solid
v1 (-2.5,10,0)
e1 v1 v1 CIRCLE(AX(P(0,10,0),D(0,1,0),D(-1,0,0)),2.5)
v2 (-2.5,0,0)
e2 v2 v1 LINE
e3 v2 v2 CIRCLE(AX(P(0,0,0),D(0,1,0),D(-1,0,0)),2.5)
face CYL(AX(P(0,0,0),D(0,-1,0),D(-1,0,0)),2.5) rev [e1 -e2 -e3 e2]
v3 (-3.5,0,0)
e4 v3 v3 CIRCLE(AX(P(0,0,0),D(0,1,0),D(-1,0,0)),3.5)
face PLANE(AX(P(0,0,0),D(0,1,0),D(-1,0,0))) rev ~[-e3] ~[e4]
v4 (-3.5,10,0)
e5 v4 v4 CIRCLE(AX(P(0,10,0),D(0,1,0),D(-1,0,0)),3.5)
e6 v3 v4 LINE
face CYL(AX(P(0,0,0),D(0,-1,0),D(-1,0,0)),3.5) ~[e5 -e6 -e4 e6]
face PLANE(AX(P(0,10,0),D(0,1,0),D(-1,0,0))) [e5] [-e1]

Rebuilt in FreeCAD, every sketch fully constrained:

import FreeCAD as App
import Part
import Sketcher

doc = App.newDocument("Part")
body = doc.addObject("PartDesign::Body", "Body")

sketch1 = body.newObject("Sketcher::SketchObject", "Sketch")
sketch1.AttachmentSupport = (doc.getObject("XZ_Plane"), [""])
sketch1.MapMode = "FlatFace"
sketch1.addGeometry(Part.Circle(App.Vector(0, 0, 0), App.Vector(0, 0, 1), 3.5), False)
sketch1.addGeometry(Part.Circle(App.Vector(0, 0, 0), App.Vector(0, 0, 1), 2.5), False)
sketch1.addConstraint(Sketcher.Constraint("Coincident", 0, 3, -1, 1))
sketch1.addConstraint(Sketcher.Constraint("Coincident", 1, 3, -1, 1))
sketch1.addConstraint(Sketcher.Constraint("Diameter", 0, 7.0))
sketch1.addConstraint(Sketcher.Constraint("Diameter", 1, 5.0))
pad1 = body.newObject("PartDesign::Pad", "Pad")
pad1.Profile = sketch1
pad1.Length = 10
pad1.Reversed = True

doc.recompute()
